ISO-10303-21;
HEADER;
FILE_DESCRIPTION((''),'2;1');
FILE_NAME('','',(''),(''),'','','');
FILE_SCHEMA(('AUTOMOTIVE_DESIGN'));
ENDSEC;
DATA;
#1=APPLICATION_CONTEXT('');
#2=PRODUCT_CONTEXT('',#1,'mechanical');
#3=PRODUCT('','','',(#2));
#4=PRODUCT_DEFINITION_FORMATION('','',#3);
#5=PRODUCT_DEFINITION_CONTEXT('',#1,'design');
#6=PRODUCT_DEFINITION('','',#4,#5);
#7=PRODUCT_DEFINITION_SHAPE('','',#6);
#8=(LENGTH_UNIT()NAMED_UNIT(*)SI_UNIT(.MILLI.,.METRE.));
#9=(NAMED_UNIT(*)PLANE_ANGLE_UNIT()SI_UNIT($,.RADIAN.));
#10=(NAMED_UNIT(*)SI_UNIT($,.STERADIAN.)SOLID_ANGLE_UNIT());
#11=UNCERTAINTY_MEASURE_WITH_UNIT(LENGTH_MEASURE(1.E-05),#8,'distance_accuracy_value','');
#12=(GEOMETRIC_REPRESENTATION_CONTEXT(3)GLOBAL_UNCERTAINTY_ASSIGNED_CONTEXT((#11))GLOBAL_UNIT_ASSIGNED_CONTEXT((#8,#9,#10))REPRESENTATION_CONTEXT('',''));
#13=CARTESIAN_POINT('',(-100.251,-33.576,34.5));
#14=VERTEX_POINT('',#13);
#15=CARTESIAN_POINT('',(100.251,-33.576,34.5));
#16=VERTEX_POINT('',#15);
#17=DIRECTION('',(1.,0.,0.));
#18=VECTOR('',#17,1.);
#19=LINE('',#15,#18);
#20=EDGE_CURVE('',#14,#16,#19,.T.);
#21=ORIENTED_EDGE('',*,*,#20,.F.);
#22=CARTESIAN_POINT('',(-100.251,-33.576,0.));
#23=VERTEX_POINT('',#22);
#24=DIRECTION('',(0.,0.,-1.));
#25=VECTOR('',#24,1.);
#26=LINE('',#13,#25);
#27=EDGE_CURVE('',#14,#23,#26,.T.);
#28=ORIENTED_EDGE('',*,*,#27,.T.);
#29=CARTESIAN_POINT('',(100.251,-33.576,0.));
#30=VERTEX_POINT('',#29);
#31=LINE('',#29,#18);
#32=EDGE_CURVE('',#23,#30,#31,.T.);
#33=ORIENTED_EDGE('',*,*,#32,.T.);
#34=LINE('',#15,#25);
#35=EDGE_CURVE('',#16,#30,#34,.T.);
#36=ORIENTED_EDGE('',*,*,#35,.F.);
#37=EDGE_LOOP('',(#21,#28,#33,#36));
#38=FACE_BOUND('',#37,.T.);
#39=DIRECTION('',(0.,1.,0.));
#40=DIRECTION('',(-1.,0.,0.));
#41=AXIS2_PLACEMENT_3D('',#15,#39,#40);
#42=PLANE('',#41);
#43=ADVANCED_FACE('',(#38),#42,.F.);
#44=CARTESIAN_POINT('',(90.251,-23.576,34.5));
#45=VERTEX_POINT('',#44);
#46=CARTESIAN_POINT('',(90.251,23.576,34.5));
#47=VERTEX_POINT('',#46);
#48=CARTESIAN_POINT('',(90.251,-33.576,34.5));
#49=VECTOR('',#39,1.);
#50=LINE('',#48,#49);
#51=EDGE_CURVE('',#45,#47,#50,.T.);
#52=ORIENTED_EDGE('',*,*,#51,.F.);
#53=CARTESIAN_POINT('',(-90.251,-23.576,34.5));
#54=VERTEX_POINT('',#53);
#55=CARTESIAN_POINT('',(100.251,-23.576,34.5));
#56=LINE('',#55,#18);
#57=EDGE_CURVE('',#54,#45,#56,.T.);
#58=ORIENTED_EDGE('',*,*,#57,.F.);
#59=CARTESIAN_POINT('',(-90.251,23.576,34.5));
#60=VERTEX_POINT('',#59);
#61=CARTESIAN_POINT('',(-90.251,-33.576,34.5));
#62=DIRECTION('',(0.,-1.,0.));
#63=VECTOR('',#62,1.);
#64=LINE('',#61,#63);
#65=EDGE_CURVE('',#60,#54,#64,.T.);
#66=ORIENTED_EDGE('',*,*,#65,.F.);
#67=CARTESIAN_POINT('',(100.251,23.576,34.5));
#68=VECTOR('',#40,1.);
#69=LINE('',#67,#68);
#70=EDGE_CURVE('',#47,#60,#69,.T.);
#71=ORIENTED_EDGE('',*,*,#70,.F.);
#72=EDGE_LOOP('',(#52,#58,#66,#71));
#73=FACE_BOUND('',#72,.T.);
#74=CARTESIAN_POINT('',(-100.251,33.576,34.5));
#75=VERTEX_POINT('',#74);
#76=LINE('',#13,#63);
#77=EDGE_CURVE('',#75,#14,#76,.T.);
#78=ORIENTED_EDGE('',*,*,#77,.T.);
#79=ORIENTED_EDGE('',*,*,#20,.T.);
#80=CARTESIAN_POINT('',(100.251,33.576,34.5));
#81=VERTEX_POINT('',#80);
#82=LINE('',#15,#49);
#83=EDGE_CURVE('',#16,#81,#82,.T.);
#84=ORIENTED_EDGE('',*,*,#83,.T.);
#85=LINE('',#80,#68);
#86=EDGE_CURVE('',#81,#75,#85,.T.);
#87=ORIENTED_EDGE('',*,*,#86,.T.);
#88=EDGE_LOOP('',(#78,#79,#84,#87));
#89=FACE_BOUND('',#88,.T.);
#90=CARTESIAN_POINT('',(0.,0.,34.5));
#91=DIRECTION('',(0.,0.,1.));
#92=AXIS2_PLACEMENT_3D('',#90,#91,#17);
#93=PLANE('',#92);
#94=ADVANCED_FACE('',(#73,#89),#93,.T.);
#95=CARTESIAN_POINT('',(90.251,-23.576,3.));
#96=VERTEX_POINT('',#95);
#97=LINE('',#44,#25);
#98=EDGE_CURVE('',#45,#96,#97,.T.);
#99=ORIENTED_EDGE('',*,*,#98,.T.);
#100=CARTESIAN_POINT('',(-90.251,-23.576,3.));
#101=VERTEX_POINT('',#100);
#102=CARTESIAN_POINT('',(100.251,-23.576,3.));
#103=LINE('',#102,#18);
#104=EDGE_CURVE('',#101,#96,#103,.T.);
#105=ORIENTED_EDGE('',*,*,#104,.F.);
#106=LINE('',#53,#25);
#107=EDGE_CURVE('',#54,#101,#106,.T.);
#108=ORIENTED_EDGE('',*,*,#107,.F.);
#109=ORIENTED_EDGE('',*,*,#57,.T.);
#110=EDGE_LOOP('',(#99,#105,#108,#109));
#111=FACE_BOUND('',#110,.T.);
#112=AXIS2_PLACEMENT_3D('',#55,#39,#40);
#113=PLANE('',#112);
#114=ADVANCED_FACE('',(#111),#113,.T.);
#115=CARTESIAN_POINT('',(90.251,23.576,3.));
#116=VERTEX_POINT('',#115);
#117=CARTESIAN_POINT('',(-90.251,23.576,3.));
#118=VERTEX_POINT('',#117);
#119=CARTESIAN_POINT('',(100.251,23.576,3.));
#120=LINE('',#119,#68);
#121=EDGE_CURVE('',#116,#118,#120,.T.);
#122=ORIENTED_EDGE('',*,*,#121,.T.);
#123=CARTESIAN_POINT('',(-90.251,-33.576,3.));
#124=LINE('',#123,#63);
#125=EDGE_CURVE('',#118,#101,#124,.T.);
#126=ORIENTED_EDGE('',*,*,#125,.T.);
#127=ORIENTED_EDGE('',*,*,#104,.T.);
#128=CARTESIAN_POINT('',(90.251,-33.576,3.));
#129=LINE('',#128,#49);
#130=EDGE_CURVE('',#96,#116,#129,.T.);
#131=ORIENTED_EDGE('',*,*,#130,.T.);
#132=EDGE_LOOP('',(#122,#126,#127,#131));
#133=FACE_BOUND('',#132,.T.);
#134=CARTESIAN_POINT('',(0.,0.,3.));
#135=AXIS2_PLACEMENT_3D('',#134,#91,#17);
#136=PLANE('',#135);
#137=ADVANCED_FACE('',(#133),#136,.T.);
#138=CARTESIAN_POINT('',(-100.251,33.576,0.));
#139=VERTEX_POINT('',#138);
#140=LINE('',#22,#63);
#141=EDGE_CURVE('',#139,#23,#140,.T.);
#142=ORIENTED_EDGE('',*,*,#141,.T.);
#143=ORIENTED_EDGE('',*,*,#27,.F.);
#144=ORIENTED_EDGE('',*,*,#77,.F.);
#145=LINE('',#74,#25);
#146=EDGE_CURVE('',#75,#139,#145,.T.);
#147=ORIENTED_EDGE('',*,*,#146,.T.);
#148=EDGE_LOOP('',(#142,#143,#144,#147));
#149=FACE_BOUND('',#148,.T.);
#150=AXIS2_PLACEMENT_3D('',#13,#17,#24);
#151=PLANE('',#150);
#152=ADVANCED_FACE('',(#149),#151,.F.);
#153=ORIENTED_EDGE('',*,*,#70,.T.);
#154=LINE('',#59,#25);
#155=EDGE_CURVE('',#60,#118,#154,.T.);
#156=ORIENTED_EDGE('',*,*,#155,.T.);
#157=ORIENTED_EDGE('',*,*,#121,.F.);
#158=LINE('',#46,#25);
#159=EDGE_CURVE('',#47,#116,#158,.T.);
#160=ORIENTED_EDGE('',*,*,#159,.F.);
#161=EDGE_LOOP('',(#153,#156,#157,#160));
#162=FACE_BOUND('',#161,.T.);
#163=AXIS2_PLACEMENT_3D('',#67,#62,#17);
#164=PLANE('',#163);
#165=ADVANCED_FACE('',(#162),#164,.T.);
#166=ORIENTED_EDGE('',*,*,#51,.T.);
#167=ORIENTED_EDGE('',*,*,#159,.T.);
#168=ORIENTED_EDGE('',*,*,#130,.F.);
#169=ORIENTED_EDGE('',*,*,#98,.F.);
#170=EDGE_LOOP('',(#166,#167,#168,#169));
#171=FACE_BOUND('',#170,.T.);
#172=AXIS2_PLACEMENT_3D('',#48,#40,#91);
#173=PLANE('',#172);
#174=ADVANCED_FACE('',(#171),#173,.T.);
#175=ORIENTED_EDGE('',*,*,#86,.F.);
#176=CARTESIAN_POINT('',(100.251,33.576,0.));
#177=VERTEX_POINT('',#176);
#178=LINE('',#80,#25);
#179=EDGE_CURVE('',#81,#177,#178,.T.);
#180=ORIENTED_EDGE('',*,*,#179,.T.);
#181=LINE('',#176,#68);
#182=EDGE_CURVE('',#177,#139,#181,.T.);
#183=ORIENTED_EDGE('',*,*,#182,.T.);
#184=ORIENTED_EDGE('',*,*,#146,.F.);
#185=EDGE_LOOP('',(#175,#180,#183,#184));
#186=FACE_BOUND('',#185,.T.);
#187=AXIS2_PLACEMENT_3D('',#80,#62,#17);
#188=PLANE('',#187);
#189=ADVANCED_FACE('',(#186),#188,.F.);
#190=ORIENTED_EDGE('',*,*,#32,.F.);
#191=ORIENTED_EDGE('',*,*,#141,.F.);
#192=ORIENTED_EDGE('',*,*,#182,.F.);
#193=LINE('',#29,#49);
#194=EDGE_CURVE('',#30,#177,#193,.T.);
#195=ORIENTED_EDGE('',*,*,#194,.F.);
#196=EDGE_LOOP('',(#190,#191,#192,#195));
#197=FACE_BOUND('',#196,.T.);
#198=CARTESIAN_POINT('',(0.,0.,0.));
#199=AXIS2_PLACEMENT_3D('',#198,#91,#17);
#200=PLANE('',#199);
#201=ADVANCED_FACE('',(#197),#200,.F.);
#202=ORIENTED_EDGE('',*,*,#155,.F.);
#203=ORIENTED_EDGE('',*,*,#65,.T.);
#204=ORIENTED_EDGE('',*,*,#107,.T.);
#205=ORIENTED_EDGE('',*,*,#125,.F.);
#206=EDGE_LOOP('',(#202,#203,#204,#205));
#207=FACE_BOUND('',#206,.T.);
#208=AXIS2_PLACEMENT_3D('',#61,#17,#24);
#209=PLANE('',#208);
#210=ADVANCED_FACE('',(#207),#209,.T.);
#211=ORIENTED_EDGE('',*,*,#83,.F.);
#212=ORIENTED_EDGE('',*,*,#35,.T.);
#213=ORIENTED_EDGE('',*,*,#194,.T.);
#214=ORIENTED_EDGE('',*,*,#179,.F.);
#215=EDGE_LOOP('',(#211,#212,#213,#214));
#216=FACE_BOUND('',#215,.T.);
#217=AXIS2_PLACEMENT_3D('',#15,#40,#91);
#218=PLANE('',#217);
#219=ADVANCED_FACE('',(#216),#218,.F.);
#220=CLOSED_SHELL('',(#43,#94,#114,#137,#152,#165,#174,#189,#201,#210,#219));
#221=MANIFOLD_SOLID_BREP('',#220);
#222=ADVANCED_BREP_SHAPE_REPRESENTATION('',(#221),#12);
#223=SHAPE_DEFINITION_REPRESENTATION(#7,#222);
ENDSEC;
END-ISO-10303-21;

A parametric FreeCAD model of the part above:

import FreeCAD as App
import Part
import Sketcher
from FreeCAD import Vector
Q = App.Units.Quantity


def faces_at(feature, points):
    """Names of the faces that lie closest to the given points."""
    faces = feature.Shape.Faces
    near = lambda p: min(range(len(faces)), key=lambda i: faces[i].distToShape(Part.Vertex(*p))[0])
    return sorted({f"Face{near(p) + 1}" for p in points})


def add_polygon(sketch, points):
    """Adds a closed chain of lines whose ends are joined by coincident constraints."""
    first, n = sketch.GeometryCount, len(points)
    for a, b in zip(points, points[1:] + points[:1]):
        sketch.addGeometry(Part.LineSegment(App.Vector(*a, 0), App.Vector(*b, 0)), False)
    for i in range(n):
        sketch.addConstraint(Sketcher.Constraint("Coincident", first + i, 2, first + (i + 1) % n, 1))

doc = App.newDocument("Part")
params = doc.addObject("Spreadsheet::Sheet", "Params")
for row, (alias, value) in enumerate([
    ("pad1_length", "34.5 mm"),
    ("thickness_wall", "3 mm"),
    ("sketch2_height", "31.5 mm"),
    ("pad2_length", "7 mm"),
    ("sketch3_height", "31.5 mm"),
    ("pad3_length", "7 mm"),
    ("sketch4_height", "31.5 mm"),
    ("pad4_length", "7 mm"),
    ("sketch5_height", "31.5 mm"),
    ("pad5_length", "7 mm"),
], start=1):
    params.set(f"A{row}", alias)
    params.set(f"B{row}", "=" + value)
    params.setAlias(f"B{row}", alias)

body = doc.addObject("PartDesign::Body", "Body")

sketch1 = body.newObject("Sketcher::SketchObject", "Sketch")
sketch1.AttachmentSupport = (doc.getObject("XY_Plane"), [""])
sketch1.MapMode = "FlatFace"
add_polygon(sketch1, [(-100.251, 33.576), (-100.251, -33.576), (100.251, -33.576), (100.251, 33.576)])
sketch1.addConstraint(Sketcher.Constraint("Vertical", 0))
sketch1.addConstraint(Sketcher.Constraint("Horizontal", 1))
sketch1.addConstraint(Sketcher.Constraint("Vertical", 2))
sketch1.addConstraint(Sketcher.Constraint("Horizontal", 3))
sketch1.addConstraint(Sketcher.Constraint("Symmetric", 0, 2, 2, 2, -1, 1))
sketch1.addConstraint(Sketcher.Constraint("DistanceX", 1, 1, 1, 2, Q("200.502 mm")))
sketch1.addConstraint(Sketcher.Constraint("DistanceY", 0, 2, 0, 1, Q("67.152 mm")))
pad1 = body.newObject("PartDesign::Pad", "Pad")
pad1.Profile = sketch1
pad1.setExpression("Length", "Params.pad1_length")
doc.recompute()

thickness = body.newObject("PartDesign::Thickness", "Thickness")
thickness.Base = (pad1, faces_at(pad1, [(0, 0, 34.5)]))
thickness.setExpression("Value", "Params.thickness_wall")
thickness.Reversed = True
thickness.Join = "Intersection"

sketch2 = body.newObject("Sketcher::SketchObject", "Sketch001")
sketch2.AttachmentSupport = (doc.getObject("XZ_Plane"), [""])
sketch2.MapMode = "FlatFace"
sketch2.AttachmentOffset = App.Placement(Vector(0, 0, -30.576), App.Rotation())
add_polygon(sketch2, [(-97.251, 3), (-97.251, 34.5), (97.251, 34.5), (97.251, 3)])
sketch2.addConstraint(Sketcher.Constraint("Vertical", 0))
sketch2.addConstraint(Sketcher.Constraint("Horizontal", 1))
sketch2.addConstraint(Sketcher.Constraint("Vertical", 2))
sketch2.addConstraint(Sketcher.Constraint("Horizontal", 3))
sketch2.addConstraint(Sketcher.Constraint("DistanceY", 0, 1, 0, 2, Q("31.5 mm")))
sketch2.addConstraint(Sketcher.Constraint("DistanceY", -1, 1, 2, 2, Q("3 mm")))
sketch2.addConstraint(Sketcher.Constraint("DistanceX", 1, 1, 1, 2, Q("194.502 mm")))
sketch2.addConstraint(Sketcher.Constraint("DistanceX", 0, 2, -1, 1, Q("97.251 mm")))
sketch2.setExpression("Constraints[8]", "Params.sketch2_height")
pad2 = body.newObject("PartDesign::Pad", "Pad001")
pad2.Profile = sketch2
pad2.setExpression("Length", "Params.pad2_length")

sketch3 = body.newObject("Sketcher::SketchObject", "Sketch002")
sketch3.AttachmentSupport = (doc.getObject("YZ_Plane"), [""])
sketch3.MapMode = "FlatFace"
sketch3.AttachmentOffset = App.Placement(Vector(0, 0, 97.251), App.Rotation())
add_polygon(sketch3, [(-30.576, 3), (23.576, 3), (23.576, 34.5), (-30.576, 34.5)])
sketch3.addConstraint(Sketcher.Constraint("Horizontal", 0))
sketch3.addConstraint(Sketcher.Constraint("Vertical", 1))
sketch3.addConstraint(Sketcher.Constraint("Horizontal", 2))
sketch3.addConstraint(Sketcher.Constraint("Vertical", 3))
sketch3.addConstraint(Sketcher.Constraint("DistanceY", 1, 1, 1, 2, Q("31.5 mm")))
sketch3.addConstraint(Sketcher.Constraint("DistanceY", -1, 1, 0, 2, Q("3 mm")))
sketch3.addConstraint(Sketcher.Constraint("DistanceX", 0, 1, 0, 2, Q("54.152 mm")))
sketch3.addConstraint(Sketcher.Constraint("DistanceX", -1, 1, 0, 2, Q("23.576 mm")))
sketch3.setExpression("Constraints[8]", "Params.sketch3_height")
pad3 = body.newObject("PartDesign::Pad", "Pad002")
pad3.Profile = sketch3
pad3.setExpression("Length", "Params.pad3_length")
pad3.Reversed = True

sketch4 = body.newObject("Sketcher::SketchObject", "Sketch003")
sketch4.AttachmentSupport = (doc.getObject("YZ_Plane"), [""])
sketch4.MapMode = "FlatFace"
sketch4.AttachmentOffset = App.Placement(Vector(0, 0, -97.251), App.Rotation())
add_polygon(sketch4, [(-30.576, 34.5), (23.576, 34.5), (23.576, 3), (-30.576, 3)])
sketch4.addConstraint(Sketcher.Constraint("Horizontal", 0))
sketch4.addConstraint(Sketcher.Constraint("Vertical", 1))
sketch4.addConstraint(Sketcher.Constraint("Horizontal", 2))
sketch4.addConstraint(Sketcher.Constraint("Vertical", 3))
sketch4.addConstraint(Sketcher.Constraint("DistanceY", 1, 2, 1, 1, Q("31.5 mm")))
sketch4.addConstraint(Sketcher.Constraint("DistanceY", -1, 1, 1, 2, Q("3 mm")))
sketch4.addConstraint(Sketcher.Constraint("DistanceX", 0, 1, 0, 2, Q("54.152 mm")))
sketch4.addConstraint(Sketcher.Constraint("DistanceX", -1, 1, 0, 2, Q("23.576 mm")))
sketch4.setExpression("Constraints[8]", "Params.sketch4_height")
pad4 = body.newObject("PartDesign::Pad", "Pad003")
pad4.Profile = sketch4
pad4.setExpression("Length", "Params.pad4_length")

sketch5 = body.newObject("Sketcher::SketchObject", "Sketch004")
sketch5.AttachmentSupport = (doc.getObject("XZ_Plane"), [""])
sketch5.MapMode = "FlatFace"
sketch5.AttachmentOffset = App.Placement(Vector(0, 0, 30.576), App.Rotation())
add_polygon(sketch5, [(90.251, 3), (90.251, 34.5), (-90.251, 34.5), (-90.251, 3)])
sketch5.addConstraint(Sketcher.Constraint("Vertical", 0))
sketch5.addConstraint(Sketcher.Constraint("Horizontal", 1))
sketch5.addConstraint(Sketcher.Constraint("Vertical", 2))
sketch5.addConstraint(Sketcher.Constraint("Horizontal", 3))
sketch5.addConstraint(Sketcher.Constraint("DistanceY", 0, 1, 0, 2, Q("31.5 mm")))
sketch5.addConstraint(Sketcher.Constraint("DistanceY", -1, 1, 2, 2, Q("3 mm")))
sketch5.addConstraint(Sketcher.Constraint("DistanceX", 1, 2, 1, 1, Q("180.502 mm")))
sketch5.addConstraint(Sketcher.Constraint("DistanceX", -1, 1, 0, 2, Q("90.251 mm")))
sketch5.setExpression("Constraints[8]", "Params.sketch5_height")
pad5 = body.newObject("PartDesign::Pad", "Pad004")
pad5.Profile = sketch5
pad5.setExpression("Length", "Params.pad5_length")
pad5.Reversed = True

doc.recompute()
